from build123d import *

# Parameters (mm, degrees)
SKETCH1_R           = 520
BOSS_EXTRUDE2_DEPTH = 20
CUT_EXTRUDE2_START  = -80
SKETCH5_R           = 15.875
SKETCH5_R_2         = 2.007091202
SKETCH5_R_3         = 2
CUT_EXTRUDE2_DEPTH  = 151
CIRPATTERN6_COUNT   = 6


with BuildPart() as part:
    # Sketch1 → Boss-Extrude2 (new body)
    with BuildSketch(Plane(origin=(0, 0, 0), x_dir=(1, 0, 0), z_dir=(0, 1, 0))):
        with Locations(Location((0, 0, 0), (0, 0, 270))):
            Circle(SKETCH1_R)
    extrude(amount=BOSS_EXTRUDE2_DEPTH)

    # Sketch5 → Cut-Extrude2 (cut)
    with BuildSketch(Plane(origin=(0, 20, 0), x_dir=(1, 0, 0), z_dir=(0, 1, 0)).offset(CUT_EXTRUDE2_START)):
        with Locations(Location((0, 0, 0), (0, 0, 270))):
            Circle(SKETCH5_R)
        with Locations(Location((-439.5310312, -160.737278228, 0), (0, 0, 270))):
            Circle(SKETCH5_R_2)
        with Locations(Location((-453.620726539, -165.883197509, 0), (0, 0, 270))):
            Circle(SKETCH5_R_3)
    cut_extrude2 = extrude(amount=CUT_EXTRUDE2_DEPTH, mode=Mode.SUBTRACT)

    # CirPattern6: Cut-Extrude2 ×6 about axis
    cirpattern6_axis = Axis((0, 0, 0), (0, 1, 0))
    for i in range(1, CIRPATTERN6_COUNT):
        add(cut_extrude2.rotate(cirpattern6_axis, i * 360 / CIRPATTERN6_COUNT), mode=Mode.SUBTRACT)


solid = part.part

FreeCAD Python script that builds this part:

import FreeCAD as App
import Part
import Sketcher

V = App.Vector

doc = App.newDocument("Part")
body = doc.addObject("PartDesign::Body", "Body")

sketch1 = body.newObject("Sketcher::SketchObject", "Sketch")
sketch1.AttachmentSupport = (doc.getObject("XZ_Plane"), [""])
sketch1.MapMode = "FlatFace"
sketch1.addGeometry(Part.Circle(V(0, 0, 0), V(0, 0, 1), 520), False)
sketch1.addConstraint(Sketcher.Constraint("Coincident", 0, 3, -1, 1))
sketch1.addConstraint(Sketcher.Constraint("Diameter", 0, 1040.0))
pad1 = body.newObject("PartDesign::Pad", "Pad")
pad1.Profile = sketch1
pad1.Length = 20
pad1.Reversed = True

sketch2 = body.newObject("Sketcher::SketchObject", "Sketch001")
sketch2.AttachmentSupport = (doc.getObject("XZ_Plane"), [""])
sketch2.MapMode = "FlatFace"
sketch2.AttachmentOffset = App.Placement(V(0, 0, 60), App.Rotation())
sketch2.addGeometry(Part.Circle(V(0, 0, 0), V(0, 0, 1), 15.9), False)
sketch2.addGeometry(Part.Circle(V(-439.5, 160.7, 0), V(0, 0, 1), 2), False)
sketch2.addGeometry(Part.Circle(V(-453.6, 165.9, 0), V(0, 0, 1), 2), False)
sketch2.addConstraint(Sketcher.Constraint("Coincident", 0, 3, -1, 1))
sketch2.addConstraint(Sketcher.Constraint("Diameter", 2, 4.0))
sketch2.addConstraint(Sketcher.Constraint("Diameter", 0, 31.75))
sketch2.addConstraint(Sketcher.Constraint("Diameter", 1, 4.014182))
sketch2.addConstraint(Sketcher.Constraint("DistanceX", 1, 3, -1, 1, 439.531031))
sketch2.addConstraint(Sketcher.Constraint("DistanceY", -1, 1, 1, 3, 160.737278))
sketch2.addConstraint(Sketcher.Constraint("DistanceY", 1, 3, 2, 3, 5.145919))
sketch2.addConstraint(Sketcher.Constraint("DistanceX", 2, 3, -1, 1, 453.620727))
pocket1 = body.newObject("PartDesign::Pocket", "Pocket")
pocket1.Profile = sketch2
pocket1.Length = 151
doc.recompute()

polarpattern = body.newObject("PartDesign::PolarPattern", "PolarPattern")
polarpattern.Originals = [pocket1]
polarpattern.Axis = (doc.getObject("Y_Axis"), [""])
polarpattern.Angle = 360
polarpattern.Occurrences = 6
body.Tip = polarpattern

doc.recompute()
